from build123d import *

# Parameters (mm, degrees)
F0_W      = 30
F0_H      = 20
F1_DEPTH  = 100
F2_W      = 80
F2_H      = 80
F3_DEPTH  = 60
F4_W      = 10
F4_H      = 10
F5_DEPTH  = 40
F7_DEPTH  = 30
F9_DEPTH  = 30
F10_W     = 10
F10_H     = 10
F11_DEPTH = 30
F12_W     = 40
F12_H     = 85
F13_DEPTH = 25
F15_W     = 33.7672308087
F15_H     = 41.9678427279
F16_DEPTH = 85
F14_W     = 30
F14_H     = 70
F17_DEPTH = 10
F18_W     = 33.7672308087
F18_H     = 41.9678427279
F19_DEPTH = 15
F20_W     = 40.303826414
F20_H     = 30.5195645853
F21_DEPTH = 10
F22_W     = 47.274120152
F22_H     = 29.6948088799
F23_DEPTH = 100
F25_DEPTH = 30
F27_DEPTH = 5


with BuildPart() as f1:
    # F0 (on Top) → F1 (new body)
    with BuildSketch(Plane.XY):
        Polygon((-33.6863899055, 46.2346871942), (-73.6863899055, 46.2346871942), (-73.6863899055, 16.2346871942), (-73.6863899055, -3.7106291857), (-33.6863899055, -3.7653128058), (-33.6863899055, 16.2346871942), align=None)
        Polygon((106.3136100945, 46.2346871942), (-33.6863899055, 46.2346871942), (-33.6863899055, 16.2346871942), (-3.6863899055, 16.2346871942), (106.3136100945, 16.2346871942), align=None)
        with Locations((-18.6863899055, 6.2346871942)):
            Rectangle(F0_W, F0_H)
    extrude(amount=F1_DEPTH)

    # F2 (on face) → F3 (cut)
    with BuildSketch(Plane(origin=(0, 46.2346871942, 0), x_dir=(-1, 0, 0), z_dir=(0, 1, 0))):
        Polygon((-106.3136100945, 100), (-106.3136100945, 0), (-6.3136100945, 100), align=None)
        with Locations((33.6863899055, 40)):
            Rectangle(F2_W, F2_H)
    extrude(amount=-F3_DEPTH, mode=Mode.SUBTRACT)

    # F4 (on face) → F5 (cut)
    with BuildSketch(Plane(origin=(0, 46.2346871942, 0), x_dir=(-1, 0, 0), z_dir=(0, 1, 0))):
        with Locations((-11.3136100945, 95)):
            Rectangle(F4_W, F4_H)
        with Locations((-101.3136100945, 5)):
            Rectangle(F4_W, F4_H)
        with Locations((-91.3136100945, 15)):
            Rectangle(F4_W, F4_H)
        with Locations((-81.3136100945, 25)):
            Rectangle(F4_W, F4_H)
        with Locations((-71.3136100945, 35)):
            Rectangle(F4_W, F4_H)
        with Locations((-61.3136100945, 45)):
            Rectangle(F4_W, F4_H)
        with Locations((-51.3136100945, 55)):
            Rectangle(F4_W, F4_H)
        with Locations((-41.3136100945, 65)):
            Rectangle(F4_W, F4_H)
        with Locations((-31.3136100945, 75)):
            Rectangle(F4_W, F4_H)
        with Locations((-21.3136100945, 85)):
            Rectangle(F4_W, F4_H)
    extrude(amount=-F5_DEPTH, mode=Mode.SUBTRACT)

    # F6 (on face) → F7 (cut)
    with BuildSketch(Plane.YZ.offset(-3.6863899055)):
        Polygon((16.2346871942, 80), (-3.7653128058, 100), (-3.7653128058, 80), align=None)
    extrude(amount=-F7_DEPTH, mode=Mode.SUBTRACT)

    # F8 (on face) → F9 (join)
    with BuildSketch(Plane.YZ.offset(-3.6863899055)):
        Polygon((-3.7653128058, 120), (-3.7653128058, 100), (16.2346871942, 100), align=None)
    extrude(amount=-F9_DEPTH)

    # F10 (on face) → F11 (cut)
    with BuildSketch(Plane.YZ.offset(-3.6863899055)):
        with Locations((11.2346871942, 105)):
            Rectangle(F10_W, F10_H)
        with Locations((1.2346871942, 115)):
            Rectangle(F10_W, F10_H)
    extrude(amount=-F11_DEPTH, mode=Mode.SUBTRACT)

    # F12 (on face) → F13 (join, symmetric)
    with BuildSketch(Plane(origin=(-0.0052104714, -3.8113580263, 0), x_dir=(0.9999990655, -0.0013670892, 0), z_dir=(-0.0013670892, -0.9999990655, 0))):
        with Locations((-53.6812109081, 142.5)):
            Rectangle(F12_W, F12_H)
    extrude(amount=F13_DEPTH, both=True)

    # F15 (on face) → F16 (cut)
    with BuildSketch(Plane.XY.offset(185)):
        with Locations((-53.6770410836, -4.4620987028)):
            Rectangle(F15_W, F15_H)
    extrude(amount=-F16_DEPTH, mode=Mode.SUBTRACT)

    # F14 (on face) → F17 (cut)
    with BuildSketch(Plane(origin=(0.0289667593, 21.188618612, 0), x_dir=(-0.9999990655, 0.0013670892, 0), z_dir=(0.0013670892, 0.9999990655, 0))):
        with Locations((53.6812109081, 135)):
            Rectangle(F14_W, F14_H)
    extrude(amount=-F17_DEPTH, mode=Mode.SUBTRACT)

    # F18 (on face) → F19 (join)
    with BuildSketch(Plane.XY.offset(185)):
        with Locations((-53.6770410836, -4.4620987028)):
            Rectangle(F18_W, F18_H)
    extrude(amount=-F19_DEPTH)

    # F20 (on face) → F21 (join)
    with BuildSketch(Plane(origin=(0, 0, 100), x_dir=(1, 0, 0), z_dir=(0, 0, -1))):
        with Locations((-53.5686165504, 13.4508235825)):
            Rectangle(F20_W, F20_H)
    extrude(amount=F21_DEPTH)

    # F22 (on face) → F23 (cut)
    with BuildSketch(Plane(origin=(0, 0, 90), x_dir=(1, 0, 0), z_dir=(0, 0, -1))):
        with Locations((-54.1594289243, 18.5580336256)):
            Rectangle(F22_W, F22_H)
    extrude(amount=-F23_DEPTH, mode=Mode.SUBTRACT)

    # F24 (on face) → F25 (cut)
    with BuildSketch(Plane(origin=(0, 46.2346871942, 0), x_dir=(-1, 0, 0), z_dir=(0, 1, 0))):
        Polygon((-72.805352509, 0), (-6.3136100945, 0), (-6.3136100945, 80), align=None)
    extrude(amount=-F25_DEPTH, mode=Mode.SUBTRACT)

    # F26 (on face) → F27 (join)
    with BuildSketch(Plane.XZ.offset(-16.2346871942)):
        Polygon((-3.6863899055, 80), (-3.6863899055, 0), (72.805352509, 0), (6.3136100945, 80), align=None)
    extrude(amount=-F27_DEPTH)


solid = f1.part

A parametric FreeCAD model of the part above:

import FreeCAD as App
import Part
import Sketcher

V = App.Vector
Q = App.Units.Quantity


def add_polygon(sketch, points):
    """Adds a closed chain of lines whose ends are joined by coincident constraints."""
    first, n = sketch.GeometryCount, len(points)
    for a, b in zip(points, points[1:] + points[:1]):
        sketch.addGeometry(Part.LineSegment(App.Vector(*a, 0), App.Vector(*b, 0)), False)
    for i in range(n):
        sketch.addConstraint(Sketcher.Constraint("Coincident", first + i, 2, first + (i + 1) % n, 1))

doc = App.newDocument("Part")
body = doc.addObject("PartDesign::Body", "Body")

# Sketch on XY plane
sketch1 = body.newObject("Sketcher::SketchObject", "Sketch")
sketch1.AttachmentSupport = (doc.getObject("XY_Plane"), [""])
sketch1.MapMode = "FlatFace"
add_polygon(sketch1, [(-74, 46), (-74, -4), (-34, -4), (-4, -4), (-4, 16), (106, 16), (106, 46)])  # lines 0-6
sketch1.addConstraint([
    Sketcher.Constraint("Vertical", 0),
    Sketcher.Constraint("Horizontal", 2),
    Sketcher.Constraint("Vertical", 3),
    Sketcher.Constraint("Horizontal", 4),
    Sketcher.Constraint("Vertical", 5),
    Sketcher.Constraint("Horizontal", 6),
    Sketcher.Constraint("Equal", 2, 5),
    Sketcher.Constraint("DistanceX", 2, 1, 2, 2, Q("30 mm")),
    Sketcher.Constraint("DistanceX", 4, 1, 4, 2, Q("110 mm")),
    Sketcher.Constraint("DistanceX", 6, 2, 6, 1, Q("180 mm")),
    Sketcher.Constraint("DistanceY", 3, 1, 3, 2, Q("20 mm")),
    Sketcher.Constraint("DistanceY", 0, 2, 0, 1, Q("49.945316 mm")),
    Sketcher.Constraint("DistanceX", 0, 2, -1, 1, Q("73.68639 mm")),
    Sketcher.Constraint("DistanceY", 0, 2, -1, 1, Q("3.710629 mm")),
])
pad1 = body.newObject("PartDesign::Pad", "Pad")
pad1.Profile = sketch1
pad1.Length = 100

# Sketch on XZ plane
sketch2 = body.newObject("Sketcher::SketchObject", "Sketch001")
sketch2.AttachmentSupport = (doc.getObject("XZ_Plane"), [""])
sketch2.MapMode = "FlatFace"
sketch2.AttachmentOffset = App.Placement(V(0, 0, -46.234687), App.Rotation())
add_polygon(sketch2, [(106, 100), (106, 0), (6, 100)])  # lines 0-2
add_polygon(sketch2, [(6, 80), (6, 0), (-74, 0), (-74, 80)])  # lines 3-6
sketch2.addConstraint([
    Sketcher.Constraint("Vertical", 0),
    Sketcher.Constraint("Horizontal", 2),
    Sketcher.Constraint("Vertical", 3),
    Sketcher.Constraint("Horizontal", 4),
    Sketcher.Constraint("Vertical", 5),
    Sketcher.Constraint("Horizontal", 6),
    Sketcher.Constraint("PointOnObject", 0, 2, -1),
    Sketcher.Constraint("PointOnObject", 3, 2, -1),
    Sketcher.Constraint("Vertical", 1, 2, 3, 2),
    Sketcher.Constraint("Equal", 2, 0),
    Sketcher.Constraint("Equal", 6, 3),
    Sketcher.Constraint("DistanceX", 2, 1, 2, 2, Q("100 mm")),
    Sketcher.Constraint("DistanceX", 4, 2, 4, 1, Q("80 mm")),
    Sketcher.Constraint("DistanceX", -1, 1, 0, 2, Q("106.31361 mm")),
])
pocket1 = body.newObject("PartDesign::Pocket", "Pocket")
pocket1.Profile = sketch2
pocket1.Length = 60
pocket1.Reversed = True

# Sketch on XZ plane
sketch3 = body.newObject("Sketcher::SketchObject", "Sketch002")
sketch3.AttachmentSupport = (doc.getObject("XZ_Plane"), [""])
sketch3.MapMode = "FlatFace"
sketch3.AttachmentOffset = App.Placement(V(0, 0, -46.234687), App.Rotation())
add_polygon(sketch3, [(16, 100), (16, 90), (6, 90), (6, 100)])  # lines 0-3
add_polygon(sketch3, [(106, 10), (106, 0), (96, 0), (96, 10)])  # lines 4-7
add_polygon(sketch3, [(96, 20), (96, 10), (86, 10), (86, 20)])  # lines 8-11
add_polygon(sketch3, [(86, 30), (86, 20), (76, 20), (76, 30)])  # lines 12-15
add_polygon(sketch3, [(76, 40), (76, 30), (66, 30), (66, 40)])  # lines 16-19
add_polygon(sketch3, [(66, 50), (66, 40), (56, 40), (56, 50)])  # lines 20-23
add_polygon(sketch3, [(56, 60), (56, 50), (46, 50), (46, 60)])  # lines 24-27
add_polygon(sketch3, [(46, 70), (46, 60), (36, 60), (36, 70)])  # lines 28-31
add_polygon(sketch3, [(36, 80), (36, 70), (26, 70), (26, 80)])  # lines 32-35
add_polygon(sketch3, [(26, 90), (26, 80), (16, 80), (16, 90)])  # lines 36-39
sketch3.addConstraint([
    Sketcher.Constraint("Vertical", 0),
    Sketcher.Constraint("Horizontal", 1),
    Sketcher.Constraint("Vertical", 2),
    Sketcher.Constraint("Horizontal", 3),
    Sketcher.Constraint("Vertical", 4),
    Sketcher.Constraint("Horizontal", 5),
    Sketcher.Constraint("Vertical", 6),
    Sketcher.Constraint("Horizontal", 7),
    Sketcher.Constraint("Vertical", 8),
    Sketcher.Constraint("Horizontal", 9),
    Sketcher.Constraint("Vertical", 10),
    Sketcher.Constraint("Horizontal", 11),
    Sketcher.Constraint("Vertical", 12),
    Sketcher.Constraint("Horizontal", 13),
    Sketcher.Constraint("Vertical", 14),
    Sketcher.Constraint("Horizontal", 15),
    Sketcher.Constraint("Vertical", 16),
    Sketcher.Constraint("Horizontal", 17),
    Sketcher.Constraint("Vertical", 18),
    Sketcher.Constraint("Horizontal", 19),
    Sketcher.Constraint("Vertical", 20),
    Sketcher.Constraint("Horizontal", 21),
    Sketcher.Constraint("Vertical", 22),
    Sketcher.Constraint("Horizontal", 23),
    Sketcher.Constraint("Vertical", 24),
    Sketcher.Constraint("Horizontal", 25),
    Sketcher.Constraint("Vertical", 26),
    Sketcher.Constraint("Horizontal", 27),
    Sketcher.Constraint("Vertical", 28),
    Sketcher.Constraint("Horizontal", 29),
    Sketcher.Constraint("Vertical", 30),
    Sketcher.Constraint("Horizontal", 31),
    Sketcher.Constraint("Vertical", 32),
    Sketcher.Constraint("Horizontal", 33),
    Sketcher.Constraint("Vertical", 34),
    Sketcher.Constraint("Horizontal", 35),
    Sketcher.Constraint("Vertical", 36),
    Sketcher.Constraint("Horizontal", 37),
    Sketcher.Constraint("Vertical", 38),
    Sketcher.Constraint("Horizontal", 39),
    Sketcher.Constraint("Coincident", 8, 2, 6, 2),
    Sketcher.Constraint("Coincident", 12, 2, 10, 2),
    Sketcher.Constraint("Coincident", 16, 2, 14, 2),
    Sketcher.Constraint("Coincident", 20, 2, 18, 2),
    Sketcher.Constraint("Coincident", 24, 2, 22, 2),
    Sketcher.Constraint("Coincident", 28, 2, 26, 2),
    Sketcher.Constraint("Coincident", 32, 2, 30, 2),
    Sketcher.Constraint("Coincident", 36, 2, 34, 2),
    Sketcher.Constraint("Coincident", 38, 2, 0, 2),
    Sketcher.Constraint("PointOnObject", 4, 2, -1),
    Sketcher.Constraint("Equal", 3, 5),
    Sketcher.Constraint("Equal", 7, 9),
    Sketcher.Constraint("Equal", 11, 13),
    Sketcher.Constraint("Equal", 15, 17),
    Sketcher.Constraint("Equal", 19, 21),
    Sketcher.Constraint("Equal", 23, 25),
    Sketcher.Constraint("Equal", 27, 29),
    Sketcher.Constraint("Equal", 31, 33),
    Sketcher.Constraint("Equal", 35, 37),
    Sketcher.Constraint("Equal", 39, 0),
    Sketcher.Constraint("Equal", 2, 4),
    Sketcher.Constraint("Equal", 6, 8),
    Sketcher.Constraint("Equal", 10, 12),
    Sketcher.Constraint("Equal", 14, 16),
    Sketcher.Constraint("Equal", 18, 20),
    Sketcher.Constraint("Equal", 22, 24),
    Sketcher.Constraint("Equal", 26, 28),
    Sketcher.Constraint("Equal", 30, 32),
    Sketcher.Constraint("Equal", 34, 36),
    Sketcher.Constraint("DistanceX", 1, 2, 1, 1, Q("10 mm")),
    Sketcher.Constraint("DistanceX", -1, 1, 0, 2, Q("16.31361 mm")),
])
pocket2 = body.newObject("PartDesign::Pocket", "Pocket001")
pocket2.Profile = sketch3
pocket2.Length = 40
pocket2.Reversed = True

# Sketch on YZ plane
sketch4 = body.newObject("Sketcher::SketchObject", "Sketch003")
sketch4.AttachmentSupport = (doc.getObject("YZ_Plane"), [""])
sketch4.MapMode = "FlatFace"
sketch4.AttachmentOffset = App.Placement(V(0, 0, -3.68639), App.Rotation())
add_polygon(sketch4, [(16, 80), (-4, 100), (-4, 80)])  # lines 0-2
sketch4.addConstraint([
    Sketcher.Constraint("Vertical", 1),
    Sketcher.Constraint("Horizontal", 2),
    Sketcher.Constraint("Equal", 2, 1),
    Sketcher.Constraint("DistanceX", 2, 1, 2, 2, Q("20 mm")),
    Sketcher.Constraint("DistanceY", -1, 1, 0, 2, Q("100 mm")),
    Sketcher.Constraint("DistanceX", 0, 2, -1, 1, Q("3.765313 mm")),
])
pocket3 = body.newObject("PartDesign::Pocket", "Pocket002")
pocket3.Profile = sketch4
pocket3.Length = 30

# Sketch on YZ plane
sketch5 = body.newObject("Sketcher::SketchObject", "Sketch004")
sketch5.AttachmentSupport = (doc.getObject("YZ_Plane"), [""])
sketch5.MapMode = "FlatFace"
sketch5.AttachmentOffset = App.Placement(V(0, 0, -3.68639), App.Rotation())
add_polygon(sketch5, [(-4, 120), (-4, 100), (16, 100)])  # lines 0-2
sketch5.addConstraint([
    Sketcher.Constraint("Vertical", 0),
    Sketcher.Constraint("Horizontal", 1),
    Sketcher.Constraint("Equal", 1, 0),
    Sketcher.Constraint("DistanceX", 1, 1, 1, 2, Q("20 mm")),
    Sketcher.Constraint("DistanceY", -1, 1, 0, 2, Q("100 mm")),
    Sketcher.Constraint("DistanceX", 0, 2, -1, 1, Q("3.765313 mm")),
])
pad2 = body.newObject("PartDesign::Pad", "Pad001")
pad2.Profile = sketch5
pad2.Length = 30
pad2.Reversed = True

# Sketch on YZ plane
sketch6 = body.newObject("Sketcher::SketchObject", "Sketch005")
sketch6.AttachmentSupport = (doc.getObject("YZ_Plane"), [""])
sketch6.MapMode = "FlatFace"
sketch6.AttachmentOffset = App.Placement(V(0, 0, -3.68639), App.Rotation())
add_polygon(sketch6, [(6, 110), (6, 100), (16, 100), (16, 110)])  # lines 0-3
add_polygon(sketch6, [(-4, 120), (-4, 110), (6, 110), (6, 120)])  # lines 4-7
sketch6.addConstraint([
    Sketcher.Constraint("Vertical", 0),
    Sketcher.Constraint("Horizontal", 1),
    Sketcher.Constraint("Vertical", 2),
    Sketcher.Constraint("Horizontal", 3),
    Sketcher.Constraint("Vertical", 4),
    Sketcher.Constraint("Horizontal", 5),
    Sketcher.Constraint("Vertical", 6),
    Sketcher.Constraint("Horizontal", 7),
    Sketcher.Constraint("Coincident", 5, 2, 3, 2),
    Sketcher.Constraint("Equal", 3, 5),
    Sketcher.Constraint("Equal", 7, 0),
    Sketcher.Constraint("Equal", 2, 4),
    Sketcher.Constraint("DistanceX", 1, 1, 1, 2, Q("10 mm")),
    Sketcher.Constraint("DistanceY", -1, 1, 0, 2, Q("100 mm")),
    Sketcher.Constraint("DistanceX", -1, 1, 0, 2, Q("6.234687 mm")),
])
pocket4 = body.newObject("PartDesign::Pocket", "Pocket003")
pocket4.Profile = sketch6
pocket4.Length = 30

# Sketch on an angled plane
sketch7 = body.newObject("Sketcher::SketchObject", "Sketch006")
sketch7.Placement = App.Placement(V(-0.00521, -3.811358, 0), App.Rotation(V(0.999999066, -0.001367089, 0), V(0, 0, 1.000000001), V(-0.001367089, -0.999999066, 0), "ZXY"))
add_polygon(sketch7, [(-74, 185), (-74, 100), (-34, 100), (-34, 185)])  # lines 0-3
sketch7.addConstraint([
    Sketcher.Constraint("Vertical", 0),
    Sketcher.Constraint("Horizontal", 1),
    Sketcher.Constraint("Vertical", 2),
    Sketcher.Constraint("Horizontal", 3),
    Sketcher.Constraint("DistanceX", 1, 1, 1, 2, Q("40 mm")),
    Sketcher.Constraint("DistanceY", 0, 2, 0, 1, Q("85 mm")),
    Sketcher.Constraint("DistanceY", -1, 1, 0, 2, Q("100 mm")),
    Sketcher.Constraint("DistanceX", 0, 2, -1, 1, Q("73.681211 mm")),
])
pad3 = body.newObject("PartDesign::Pad", "Pad002")
pad3.Profile = sketch7
pad3.Length = 50
pad3.Midplane = True

# Sketch on XY plane
sketch8 = body.newObject("Sketcher::SketchObject", "Sketch007")
sketch8.AttachmentSupport = (doc.getObject("XY_Plane"), [""])
sketch8.MapMode = "FlatFace"
sketch8.AttachmentOffset = App.Placement(V(0, 0, 185), App.Rotation())
add_polygon(sketch8, [(-71, 17), (-71, -25), (-37, -25), (-37, 17)])  # lines 0-3
sketch8.addConstraint([
    Sketcher.Constraint("Vertical", 0),
    Sketcher.Constraint("Horizontal", 1),
    Sketcher.Constraint("Vertical", 2),
    Sketcher.Constraint("Horizontal", 3),
    Sketcher.Constraint("DistanceX", 1, 1, 1, 2, Q("33.767231 mm")),
    Sketcher.Constraint("DistanceY", 0, 2, 0, 1, Q("41.967843 mm")),
    Sketcher.Constraint("DistanceY", 0, 2, -1, 1, Q("25.44602 mm")),
    Sketcher.Constraint("DistanceX", 0, 2, -1, 1, Q("70.560656 mm")),
])
pocket5 = body.newObject("PartDesign::Pocket", "Pocket004")
pocket5.Profile = sketch8
pocket5.Length = 85

# Sketch on an angled plane
sketch9 = body.newObject("Sketcher::SketchObject", "Sketch008")
sketch9.Placement = App.Placement(V(0.028967, 21.188619, 0), App.Rotation(V(-0.999999066, 0.001367089, 0), V(0, 0, 1.000000001), V(0.001367089, 0.999999066, 0), "ZXY"))
add_polygon(sketch9, [(39, 170), (39, 100), (69, 100), (69, 170)])  # lines 0-3
sketch9.addConstraint([
    Sketcher.Constraint("Vertical", 0),
    Sketcher.Constraint("Horizontal", 1),
    Sketcher.Constraint("Vertical", 2),
    Sketcher.Constraint("Horizontal", 3),
    Sketcher.Constraint("DistanceX", 1, 1, 1, 2, Q("30 mm")),
    Sketcher.Constraint("DistanceY", 0, 2, 0, 1, Q("70 mm")),
    Sketcher.Constraint("DistanceY", -1, 1, 0, 2, Q("100 mm")),
    Sketcher.Constraint("DistanceX", -1, 1, 0, 2, Q("38.681211 mm")),
])
pocket6 = body.newObject("PartDesign::Pocket", "Pocket005")
pocket6.Profile = sketch9
pocket6.Length = 10

# Sketch on XY plane
sketch10 = body.newObject("Sketcher::SketchObject", "Sketch009")
sketch10.AttachmentSupport = (doc.getObject("XY_Plane"), [""])
sketch10.MapMode = "FlatFace"
sketch10.AttachmentOffset = App.Placement(V(0, 0, 185), App.Rotation())
add_polygon(sketch10, [(-71, 17), (-71, -25), (-37, -25), (-37, 17)])  # lines 0-3
sketch10.addConstraint([
    Sketcher.Constraint("Vertical", 0),
    Sketcher.Constraint("Horizontal", 1),
    Sketcher.Constraint("Vertical", 2),
    Sketcher.Constraint("Horizontal", 3),
    Sketcher.Constraint("DistanceX", 1, 1, 1, 2, Q("33.767231 mm")),
    Sketcher.Constraint("DistanceY", 0, 2, 0, 1, Q("41.967843 mm")),
    Sketcher.Constraint("DistanceY", 0, 2, -1, 1, Q("25.44602 mm")),
    Sketcher.Constraint("DistanceX", 0, 2, -1, 1, Q("70.560656 mm")),
])
pad4 = body.newObject("PartDesign::Pad", "Pad003")
pad4.Profile = sketch10
pad4.Length = 15
pad4.Reversed = True

# Sketch on XY plane
sketch11 = body.newObject("Sketcher::SketchObject", "Sketch010")
sketch11.AttachmentSupport = (doc.getObject("XY_Plane"), [""])
sketch11.MapMode = "FlatFace"
sketch11.AttachmentOffset = App.Placement(V(0, 0, 100), App.Rotation())
add_polygon(sketch11, [(-74, -29), (-74, 2), (-33, 2), (-33, -29)])  # lines 0-3
sketch11.addConstraint([
    Sketcher.Constraint("Vertical", 0),
    Sketcher.Constraint("Horizontal", 1),
    Sketcher.Constraint("Vertical", 2),
    Sketcher.Constraint("Horizontal", 3),
    Sketcher.Constraint("DistanceX", 1, 1, 1, 2, Q("40.303826 mm")),
    Sketcher.Constraint("DistanceY", 0, 1, 0, 2, Q("30.519565 mm")),
    Sketcher.Constraint("DistanceX", 0, 2, -1, 1, Q("73.72053 mm")),
    Sketcher.Constraint("DistanceY", -1, 1, 0, 2, Q("1.808959 mm")),
])
pad5 = body.newObject("PartDesign::Pad", "Pad004")
pad5.Profile = sketch11
pad5.Length = 10
pad5.Reversed = True

# Sketch on XY plane
sketch12 = body.newObject("Sketcher::SketchObject", "Sketch011")
sketch12.AttachmentSupport = (doc.getObject("XY_Plane"), [""])
sketch12.MapMode = "FlatFace"
sketch12.AttachmentOffset = App.Placement(V(0, 0, 90), App.Rotation())
add_polygon(sketch12, [(-78, -33), (-78, -4), (-31, -4), (-31, -33)])  # lines 0-3
sketch12.addConstraint([
    Sketcher.Constraint("Vertical", 0),
    Sketcher.Constraint("Horizontal", 1),
    Sketcher.Constraint("Vertical", 2),
    Sketcher.Constraint("Horizontal", 3),
    Sketcher.Constraint("DistanceX", 1, 1, 1, 2, Q("47.27412 mm")),
    Sketcher.Constraint("DistanceY", 0, 1, 0, 2, Q("29.694809 mm")),
    Sketcher.Constraint("DistanceX", 0, 2, -1, 1, Q("77.796489 mm")),
    Sketcher.Constraint("DistanceY", 0, 2, -1, 1, Q("3.710629 mm")),
])
pocket7 = body.newObject("PartDesign::Pocket", "Pocket006")
pocket7.Profile = sketch12
pocket7.Length = 100
pocket7.Reversed = True

# Sketch on XZ plane
sketch13 = body.newObject("Sketcher::SketchObject", "Sketch012")
sketch13.AttachmentSupport = (doc.getObject("XZ_Plane"), [""])
sketch13.MapMode = "FlatFace"
sketch13.AttachmentOffset = App.Placement(V(0, 0, -46.234687), App.Rotation())
add_polygon(sketch13, [(73, 0), (6, 0), (6, 80)])  # lines 0-2
sketch13.addConstraint([
    Sketcher.Constraint("Horizontal", 0),
    Sketcher.Constraint("Vertical", 1),
    Sketcher.Constraint("PointOnObject", 0, 2, -1),
    Sketcher.Constraint("DistanceY", 1, 1, 1, 2, Q("80 mm")),
    Sketcher.Constraint("DistanceX", 0, 2, 0, 1, Q("66.491742 mm")),
    Sketcher.Constraint("DistanceX", -1, 1, 0, 2, Q("6.31361 mm")),
])
pocket8 = body.newObject("PartDesign::Pocket", "Pocket007")
pocket8.Profile = sketch13
pocket8.Length = 30
pocket8.Reversed = True

# Sketch on XZ plane
sketch14 = body.newObject("Sketcher::SketchObject", "Sketch013")
sketch14.AttachmentSupport = (doc.getObject("XZ_Plane"), [""])
sketch14.MapMode = "FlatFace"
sketch14.AttachmentOffset = App.Placement(V(0, 0, -16.234687), App.Rotation())
add_polygon(sketch14, [(-4, 80), (-4, 0), (73, 0), (6, 80)])  # lines 0-3
sketch14.addConstraint([
    Sketcher.Constraint("Vertical", 0),
    Sketcher.Constraint("Horizontal", 1),
    Sketcher.Constraint("Horizontal", 3),
    Sketcher.Constraint("PointOnObject", 0, 2, -1),
    Sketcher.Constraint("DistanceX", 3, 2, 3, 1, Q("10 mm")),
    Sketcher.Constraint("DistanceY", 0, 2, 0, 1, Q("80 mm")),
    Sketcher.Constraint("DistanceX", 1, 1, 1, 2, Q("76.491742 mm")),
    Sketcher.Constraint("DistanceX", 0, 2, -1, 1, Q("3.68639 mm")),
])
pad6 = body.newObject("PartDesign::Pad", "Pad005")
pad6.Profile = sketch14
pad6.Length = 5
pad6.Reversed = True

doc.recompute()
